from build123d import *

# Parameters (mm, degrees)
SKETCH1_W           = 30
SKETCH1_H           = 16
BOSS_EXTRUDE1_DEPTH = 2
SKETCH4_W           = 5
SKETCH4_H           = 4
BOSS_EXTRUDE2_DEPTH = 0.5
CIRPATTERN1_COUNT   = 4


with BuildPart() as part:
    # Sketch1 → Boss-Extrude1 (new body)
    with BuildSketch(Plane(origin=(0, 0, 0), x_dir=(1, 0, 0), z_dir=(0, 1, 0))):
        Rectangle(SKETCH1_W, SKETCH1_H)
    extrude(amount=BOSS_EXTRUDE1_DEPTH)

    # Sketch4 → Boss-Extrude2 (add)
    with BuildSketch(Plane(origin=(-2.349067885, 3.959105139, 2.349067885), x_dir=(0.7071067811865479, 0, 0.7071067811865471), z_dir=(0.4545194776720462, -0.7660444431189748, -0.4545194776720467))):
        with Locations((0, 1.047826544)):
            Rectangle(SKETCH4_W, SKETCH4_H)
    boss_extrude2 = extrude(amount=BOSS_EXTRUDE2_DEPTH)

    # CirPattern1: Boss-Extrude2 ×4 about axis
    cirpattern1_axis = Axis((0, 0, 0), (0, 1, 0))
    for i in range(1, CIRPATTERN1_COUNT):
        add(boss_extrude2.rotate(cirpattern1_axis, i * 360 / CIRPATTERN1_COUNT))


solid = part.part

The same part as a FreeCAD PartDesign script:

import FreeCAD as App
import Part
import Sketcher
from FreeCAD import Vector


def add_polygon(sketch, points):
    """Adds a closed chain of lines whose ends are joined by coincident constraints."""
    first, n = sketch.GeometryCount, len(points)
    for a, b in zip(points, points[1:] + points[:1]):
        sketch.addGeometry(Part.LineSegment(App.Vector(*a, 0), App.Vector(*b, 0)), False)
    for i in range(n):
        sketch.addConstraint(Sketcher.Constraint("Coincident", first + i, 2, first + (i + 1) % n, 1))

doc = App.newDocument("Part")
body = doc.addObject("PartDesign::Body", "Body")

sketch1 = body.newObject("Sketcher::SketchObject", "Sketch")
sketch1.AttachmentSupport = (doc.getObject("XZ_Plane"), [""])
sketch1.MapMode = "FlatFace"
add_polygon(sketch1, [(-15, -8), (-15, 8), (15, 8), (15, -8)])
sketch1.addConstraint([
    Sketcher.Constraint("Vertical", 0),
    Sketcher.Constraint("Horizontal", 1),
    Sketcher.Constraint("Vertical", 2),
    Sketcher.Constraint("Horizontal", 3),
    Sketcher.Constraint("Symmetric", 0, 2, 2, 2, -1, 1),
    Sketcher.Constraint("DistanceX", 1, 1, 1, 2, 30.0),
    Sketcher.Constraint("DistanceY", 0, 1, 0, 2, 16.0),
])
pad1 = body.newObject("PartDesign::Pad", "Pad")
pad1.Profile = sketch1
pad1.Length = 2
pad1.Reversed = True

sketch2 = body.newObject("Sketcher::SketchObject", "Sketch001")
sketch2.Placement = App.Placement(Vector(-2.349068, 3.959105, 2.349068), App.Rotation(Vector(0.707106781, 0, 0.707106781), Vector(-0.54167522, -0.64278761, 0.54167522), Vector(0.454519478, -0.766044443, -0.454519478), "ZXY"))
add_polygon(sketch2, [(-2.5, 3), (-2.5, -1), (2.5, -1), (2.5, 3)])
sketch2.addConstraint([
    Sketcher.Constraint("Vertical", 0),
    Sketcher.Constraint("Horizontal", 1),
    Sketcher.Constraint("Vertical", 2),
    Sketcher.Constraint("Horizontal", 3),
    Sketcher.Constraint("DistanceX", 1, 1, 1, 2, 5.0),
    Sketcher.Constraint("DistanceY", 0, 2, 0, 1, 4.0),
    Sketcher.Constraint("DistanceX", 0, 2, -1, 1, 2.5),
    Sketcher.Constraint("DistanceY", 0, 2, -1, 1, 0.952173),
])
pad2 = body.newObject("PartDesign::Pad", "Pad001")
pad2.Profile = sketch2
pad2.Length = 0.5
doc.recompute()

polarpattern = body.newObject("PartDesign::PolarPattern", "PolarPattern")
polarpattern.Originals = [pad2]
polarpattern.Axis = (doc.getObject("Y_Axis"), [""])
polarpattern.Angle = 360
polarpattern.Occurrences = 4
body.Tip = polarpattern

doc.recompute()
